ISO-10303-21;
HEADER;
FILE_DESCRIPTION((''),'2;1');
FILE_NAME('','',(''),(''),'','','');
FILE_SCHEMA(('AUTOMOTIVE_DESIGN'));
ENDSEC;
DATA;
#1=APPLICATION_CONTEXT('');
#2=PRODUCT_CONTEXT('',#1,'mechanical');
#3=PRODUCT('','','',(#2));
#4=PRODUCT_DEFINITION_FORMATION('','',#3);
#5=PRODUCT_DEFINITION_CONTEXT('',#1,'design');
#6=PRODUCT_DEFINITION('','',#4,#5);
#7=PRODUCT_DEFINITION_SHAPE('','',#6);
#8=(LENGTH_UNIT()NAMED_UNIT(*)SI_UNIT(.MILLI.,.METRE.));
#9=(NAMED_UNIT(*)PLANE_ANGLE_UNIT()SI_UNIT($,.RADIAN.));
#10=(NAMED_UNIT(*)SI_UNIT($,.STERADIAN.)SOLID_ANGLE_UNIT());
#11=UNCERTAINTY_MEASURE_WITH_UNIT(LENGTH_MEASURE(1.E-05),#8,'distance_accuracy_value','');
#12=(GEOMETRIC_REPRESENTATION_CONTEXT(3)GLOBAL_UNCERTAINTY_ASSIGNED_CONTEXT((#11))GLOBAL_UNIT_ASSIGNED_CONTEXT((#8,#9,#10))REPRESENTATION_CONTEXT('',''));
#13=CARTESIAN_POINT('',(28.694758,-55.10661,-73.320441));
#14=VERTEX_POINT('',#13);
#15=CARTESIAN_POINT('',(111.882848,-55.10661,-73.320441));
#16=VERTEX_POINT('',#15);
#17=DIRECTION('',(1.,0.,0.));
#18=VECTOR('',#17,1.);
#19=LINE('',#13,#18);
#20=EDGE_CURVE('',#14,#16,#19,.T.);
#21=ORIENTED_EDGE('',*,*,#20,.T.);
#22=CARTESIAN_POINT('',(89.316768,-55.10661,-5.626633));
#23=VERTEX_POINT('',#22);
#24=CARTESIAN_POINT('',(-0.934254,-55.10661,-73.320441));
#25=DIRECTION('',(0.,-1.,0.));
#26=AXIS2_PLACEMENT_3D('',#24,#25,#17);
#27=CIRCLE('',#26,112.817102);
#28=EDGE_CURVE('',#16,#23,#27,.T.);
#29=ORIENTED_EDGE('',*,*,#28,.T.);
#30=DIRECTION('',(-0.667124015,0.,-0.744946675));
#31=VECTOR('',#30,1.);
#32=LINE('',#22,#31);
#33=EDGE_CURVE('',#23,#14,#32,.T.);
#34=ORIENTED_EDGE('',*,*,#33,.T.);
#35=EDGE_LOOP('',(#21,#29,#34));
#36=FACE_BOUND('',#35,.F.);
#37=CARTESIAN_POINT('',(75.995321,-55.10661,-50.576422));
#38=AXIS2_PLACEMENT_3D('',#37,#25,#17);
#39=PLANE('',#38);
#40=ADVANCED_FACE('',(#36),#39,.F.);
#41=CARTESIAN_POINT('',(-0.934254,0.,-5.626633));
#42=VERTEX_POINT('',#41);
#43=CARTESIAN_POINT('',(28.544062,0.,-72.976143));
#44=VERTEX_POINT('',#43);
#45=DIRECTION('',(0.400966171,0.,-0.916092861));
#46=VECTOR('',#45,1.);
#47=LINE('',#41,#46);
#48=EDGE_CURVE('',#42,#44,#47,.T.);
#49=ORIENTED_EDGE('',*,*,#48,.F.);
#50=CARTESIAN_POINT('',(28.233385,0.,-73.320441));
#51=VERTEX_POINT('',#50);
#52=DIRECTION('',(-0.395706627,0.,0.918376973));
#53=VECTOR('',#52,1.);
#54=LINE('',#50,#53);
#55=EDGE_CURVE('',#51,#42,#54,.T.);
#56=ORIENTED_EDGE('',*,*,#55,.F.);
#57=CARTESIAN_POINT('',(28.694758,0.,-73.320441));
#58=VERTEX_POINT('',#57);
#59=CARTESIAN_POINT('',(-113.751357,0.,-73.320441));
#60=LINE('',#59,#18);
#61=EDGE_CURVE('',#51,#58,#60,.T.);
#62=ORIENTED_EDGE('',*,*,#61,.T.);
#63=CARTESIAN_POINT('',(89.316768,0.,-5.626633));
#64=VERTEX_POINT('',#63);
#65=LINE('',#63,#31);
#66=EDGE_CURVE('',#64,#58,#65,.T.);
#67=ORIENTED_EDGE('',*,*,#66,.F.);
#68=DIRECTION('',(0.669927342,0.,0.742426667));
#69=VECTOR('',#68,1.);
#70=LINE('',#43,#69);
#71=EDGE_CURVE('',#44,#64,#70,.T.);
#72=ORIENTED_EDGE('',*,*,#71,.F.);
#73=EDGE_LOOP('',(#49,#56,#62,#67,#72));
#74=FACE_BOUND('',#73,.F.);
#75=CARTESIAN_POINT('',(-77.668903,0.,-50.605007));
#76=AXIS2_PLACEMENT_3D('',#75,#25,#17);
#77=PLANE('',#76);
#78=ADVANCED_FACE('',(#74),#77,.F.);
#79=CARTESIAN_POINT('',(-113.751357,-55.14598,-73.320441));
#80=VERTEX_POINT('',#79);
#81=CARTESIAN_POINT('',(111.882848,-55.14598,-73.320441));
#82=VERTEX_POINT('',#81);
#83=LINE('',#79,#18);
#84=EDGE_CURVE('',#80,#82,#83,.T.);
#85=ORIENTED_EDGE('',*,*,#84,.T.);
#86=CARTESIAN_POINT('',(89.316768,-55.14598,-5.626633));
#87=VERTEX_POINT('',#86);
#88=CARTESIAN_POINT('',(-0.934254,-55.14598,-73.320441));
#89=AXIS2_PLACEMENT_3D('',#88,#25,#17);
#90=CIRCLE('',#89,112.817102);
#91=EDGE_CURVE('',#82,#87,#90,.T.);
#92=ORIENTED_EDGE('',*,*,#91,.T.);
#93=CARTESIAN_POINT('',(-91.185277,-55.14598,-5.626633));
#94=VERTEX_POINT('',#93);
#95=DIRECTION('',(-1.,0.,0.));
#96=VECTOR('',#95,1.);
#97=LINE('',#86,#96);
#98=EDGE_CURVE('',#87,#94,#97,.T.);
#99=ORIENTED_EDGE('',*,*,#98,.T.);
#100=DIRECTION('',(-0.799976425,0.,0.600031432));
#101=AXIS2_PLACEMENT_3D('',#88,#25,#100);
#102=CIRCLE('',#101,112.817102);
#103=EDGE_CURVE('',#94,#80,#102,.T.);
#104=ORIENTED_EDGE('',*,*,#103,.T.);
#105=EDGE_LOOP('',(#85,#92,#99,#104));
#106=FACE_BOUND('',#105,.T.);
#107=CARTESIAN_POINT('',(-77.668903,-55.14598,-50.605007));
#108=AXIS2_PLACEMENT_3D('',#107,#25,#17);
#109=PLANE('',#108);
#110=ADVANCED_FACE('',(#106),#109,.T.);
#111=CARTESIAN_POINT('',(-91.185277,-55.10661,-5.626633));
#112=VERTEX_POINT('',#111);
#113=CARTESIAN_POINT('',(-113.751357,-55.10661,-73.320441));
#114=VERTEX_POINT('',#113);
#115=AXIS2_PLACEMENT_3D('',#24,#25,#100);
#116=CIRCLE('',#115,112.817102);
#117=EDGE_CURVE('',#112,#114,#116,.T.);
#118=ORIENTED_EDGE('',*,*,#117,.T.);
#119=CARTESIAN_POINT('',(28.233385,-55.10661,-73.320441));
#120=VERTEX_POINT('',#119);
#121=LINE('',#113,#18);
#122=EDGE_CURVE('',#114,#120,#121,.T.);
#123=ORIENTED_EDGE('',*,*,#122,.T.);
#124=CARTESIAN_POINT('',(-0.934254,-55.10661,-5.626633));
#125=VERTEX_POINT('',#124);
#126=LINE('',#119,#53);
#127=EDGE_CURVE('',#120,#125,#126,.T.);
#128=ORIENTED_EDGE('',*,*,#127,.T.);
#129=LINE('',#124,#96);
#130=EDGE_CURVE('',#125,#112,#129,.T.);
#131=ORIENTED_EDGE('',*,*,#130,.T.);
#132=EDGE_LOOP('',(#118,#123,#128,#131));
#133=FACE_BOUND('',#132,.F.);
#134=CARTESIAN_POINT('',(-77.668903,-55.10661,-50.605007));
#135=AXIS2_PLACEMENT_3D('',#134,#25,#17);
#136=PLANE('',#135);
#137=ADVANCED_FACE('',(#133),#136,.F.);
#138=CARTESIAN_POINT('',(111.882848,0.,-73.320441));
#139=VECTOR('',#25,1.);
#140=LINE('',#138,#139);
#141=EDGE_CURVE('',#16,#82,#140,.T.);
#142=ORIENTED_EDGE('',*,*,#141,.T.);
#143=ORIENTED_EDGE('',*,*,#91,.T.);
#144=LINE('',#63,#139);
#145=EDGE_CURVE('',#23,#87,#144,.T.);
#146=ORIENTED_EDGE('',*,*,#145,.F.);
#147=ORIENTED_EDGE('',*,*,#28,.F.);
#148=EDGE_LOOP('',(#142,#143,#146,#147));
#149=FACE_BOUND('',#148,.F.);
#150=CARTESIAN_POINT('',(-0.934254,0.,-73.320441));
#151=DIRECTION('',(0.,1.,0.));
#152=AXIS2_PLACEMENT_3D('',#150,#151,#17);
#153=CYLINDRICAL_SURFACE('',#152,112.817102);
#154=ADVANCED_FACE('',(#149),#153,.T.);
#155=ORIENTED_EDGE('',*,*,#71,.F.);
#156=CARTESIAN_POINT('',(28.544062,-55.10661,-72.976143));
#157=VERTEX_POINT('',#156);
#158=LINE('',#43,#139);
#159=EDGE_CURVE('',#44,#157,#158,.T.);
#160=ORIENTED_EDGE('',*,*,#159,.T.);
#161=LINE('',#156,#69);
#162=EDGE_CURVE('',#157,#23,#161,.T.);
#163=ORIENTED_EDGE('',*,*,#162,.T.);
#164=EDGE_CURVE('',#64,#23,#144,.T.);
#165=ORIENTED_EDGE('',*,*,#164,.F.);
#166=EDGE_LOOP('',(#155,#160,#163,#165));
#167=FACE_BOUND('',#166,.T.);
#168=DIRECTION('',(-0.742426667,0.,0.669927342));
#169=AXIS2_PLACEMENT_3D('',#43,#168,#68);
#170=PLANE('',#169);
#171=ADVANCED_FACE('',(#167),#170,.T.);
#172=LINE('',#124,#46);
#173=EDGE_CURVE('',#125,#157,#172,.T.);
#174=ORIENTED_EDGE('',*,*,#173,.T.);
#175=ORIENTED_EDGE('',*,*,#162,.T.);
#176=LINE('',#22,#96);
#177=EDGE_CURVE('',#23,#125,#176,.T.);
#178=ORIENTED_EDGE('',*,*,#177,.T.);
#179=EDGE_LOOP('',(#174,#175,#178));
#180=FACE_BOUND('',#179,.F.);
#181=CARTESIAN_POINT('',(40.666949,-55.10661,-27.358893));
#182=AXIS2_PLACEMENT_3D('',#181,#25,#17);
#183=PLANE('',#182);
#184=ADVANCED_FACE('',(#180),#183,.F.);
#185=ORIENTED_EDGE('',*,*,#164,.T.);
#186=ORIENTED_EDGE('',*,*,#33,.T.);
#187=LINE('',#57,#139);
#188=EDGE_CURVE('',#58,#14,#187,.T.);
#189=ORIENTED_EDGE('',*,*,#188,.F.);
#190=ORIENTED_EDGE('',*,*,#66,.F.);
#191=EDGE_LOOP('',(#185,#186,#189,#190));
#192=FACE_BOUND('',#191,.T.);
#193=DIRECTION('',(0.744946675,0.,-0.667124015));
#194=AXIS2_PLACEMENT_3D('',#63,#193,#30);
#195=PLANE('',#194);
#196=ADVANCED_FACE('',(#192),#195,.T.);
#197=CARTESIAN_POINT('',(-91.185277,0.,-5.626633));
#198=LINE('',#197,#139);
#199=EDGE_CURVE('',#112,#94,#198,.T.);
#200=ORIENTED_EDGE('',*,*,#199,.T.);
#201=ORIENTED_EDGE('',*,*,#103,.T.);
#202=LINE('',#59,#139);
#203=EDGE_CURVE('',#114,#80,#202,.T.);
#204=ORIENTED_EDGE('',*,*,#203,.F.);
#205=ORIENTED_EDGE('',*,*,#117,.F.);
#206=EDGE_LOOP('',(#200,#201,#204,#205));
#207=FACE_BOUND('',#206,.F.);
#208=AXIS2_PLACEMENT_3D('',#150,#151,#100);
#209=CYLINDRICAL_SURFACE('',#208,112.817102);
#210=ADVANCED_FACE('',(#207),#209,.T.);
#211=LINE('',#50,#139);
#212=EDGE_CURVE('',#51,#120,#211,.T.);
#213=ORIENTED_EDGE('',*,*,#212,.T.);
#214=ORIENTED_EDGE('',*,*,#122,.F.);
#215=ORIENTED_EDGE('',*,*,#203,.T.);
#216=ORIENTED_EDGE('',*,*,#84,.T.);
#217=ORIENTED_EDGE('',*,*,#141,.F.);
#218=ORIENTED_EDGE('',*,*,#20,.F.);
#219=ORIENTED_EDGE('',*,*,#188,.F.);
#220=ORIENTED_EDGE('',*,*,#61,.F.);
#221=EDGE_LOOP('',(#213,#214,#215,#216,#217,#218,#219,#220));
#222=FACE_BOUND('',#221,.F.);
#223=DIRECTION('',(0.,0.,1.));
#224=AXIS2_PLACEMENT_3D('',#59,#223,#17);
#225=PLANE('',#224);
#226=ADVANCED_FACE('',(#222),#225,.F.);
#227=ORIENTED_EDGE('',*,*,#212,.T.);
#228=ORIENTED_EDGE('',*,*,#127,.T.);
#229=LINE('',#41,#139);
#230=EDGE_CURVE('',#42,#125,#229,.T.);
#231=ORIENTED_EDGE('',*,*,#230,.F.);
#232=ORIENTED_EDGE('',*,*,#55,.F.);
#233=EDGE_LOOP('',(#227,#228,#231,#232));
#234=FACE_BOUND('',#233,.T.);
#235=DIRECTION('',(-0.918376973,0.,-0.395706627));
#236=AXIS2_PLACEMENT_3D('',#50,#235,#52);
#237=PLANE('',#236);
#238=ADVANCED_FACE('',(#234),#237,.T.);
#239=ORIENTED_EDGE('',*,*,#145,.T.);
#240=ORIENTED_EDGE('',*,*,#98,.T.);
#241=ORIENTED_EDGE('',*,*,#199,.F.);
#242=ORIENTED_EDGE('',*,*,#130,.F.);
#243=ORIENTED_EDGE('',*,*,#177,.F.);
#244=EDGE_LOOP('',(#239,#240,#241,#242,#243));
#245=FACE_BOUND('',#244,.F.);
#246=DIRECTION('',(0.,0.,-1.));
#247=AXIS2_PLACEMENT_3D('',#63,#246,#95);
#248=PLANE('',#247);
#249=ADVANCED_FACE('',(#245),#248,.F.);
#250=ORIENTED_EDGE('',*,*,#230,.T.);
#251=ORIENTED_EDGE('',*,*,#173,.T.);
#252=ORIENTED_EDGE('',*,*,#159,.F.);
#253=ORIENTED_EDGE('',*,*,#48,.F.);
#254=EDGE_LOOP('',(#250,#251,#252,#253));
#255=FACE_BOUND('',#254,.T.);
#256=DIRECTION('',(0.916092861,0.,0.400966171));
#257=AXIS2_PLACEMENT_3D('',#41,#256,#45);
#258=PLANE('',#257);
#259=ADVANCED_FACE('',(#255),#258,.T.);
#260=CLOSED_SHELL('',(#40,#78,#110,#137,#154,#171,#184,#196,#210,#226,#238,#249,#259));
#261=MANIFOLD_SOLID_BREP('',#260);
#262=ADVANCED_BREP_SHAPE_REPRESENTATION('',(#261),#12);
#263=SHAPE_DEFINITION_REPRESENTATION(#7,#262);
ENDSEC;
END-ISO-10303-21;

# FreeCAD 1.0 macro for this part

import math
import FreeCAD as App
import Part
import Sketcher
from FreeCAD import Vector
Q = App.Units.Quantity

doc = App.newDocument("Part")
body = doc.addObject("PartDesign::Body", "Body")

# Sketch on XZ plane
sketch1 = body.newObject("Sketcher::SketchObject", "Sketch")
sketch1.AttachmentSupport = (doc.getObject("XZ_Plane"), [""])
sketch1.MapMode = "FlatFace"
sketch1.addGeometry([
    Part.ArcOfCircle(Part.Circle(Vector(-0.934254, -73.320441, 0), Vector(0, 0, 1), 112.817102), math.radians(143.127851), math.radians(180)),
    Part.LineSegment(Vector(-113.751357, -73.320441, 0), Vector(111.882848, -73.320441, 0)),
    Part.ArcOfCircle(Part.Circle(Vector(-0.934254, -73.320441, 0), Vector(0, 0, 1), 112.817102), math.radians(0), math.radians(36.872149)),
    Part.LineSegment(Vector(89.316768, -5.626633, 0), Vector(-91.185277, -5.626633, 0)),
], False)
sketch1.addConstraint([
    Sketcher.Constraint("Coincident", 0, 2, 1, 1),
    Sketcher.Constraint("Coincident", 1, 2, 2, 1),
    Sketcher.Constraint("Coincident", 2, 2, 3, 1),
    Sketcher.Constraint("Coincident", 3, 2, 0, 1),
    Sketcher.Constraint("Horizontal", 1),
    Sketcher.Constraint("Horizontal", 3),
    Sketcher.Constraint("Coincident", 2, 3, 0, 3),
    Sketcher.Constraint("Equal", 0, 2),
    Sketcher.Constraint("Horizontal", 2, 3, 0, 2),
    Sketcher.Constraint("Radius", 0, Q("112.817102 mm")),
    Sketcher.Constraint("DistanceX", 3, 2, 3, 1, Q("180.502045 mm")),
    Sketcher.Constraint("DistanceY", 0, 3, -1, 1, Q("73.320441 mm")),
    Sketcher.Constraint("DistanceX", -1, 1, 1, 2, Q("111.882848 mm")),
])
pad1 = body.newObject("PartDesign::Pad", "Pad")
pad1.Profile = sketch1
pad1.Length = 55.14598

# Sketch on XZ plane
sketch2 = body.newObject("Sketcher::SketchObject", "Sketch001")
sketch2.AttachmentSupport = (doc.getObject("XZ_Plane"), [""])
sketch2.MapMode = "FlatFace"
sketch2.addGeometry([
    Part.ArcOfCircle(Part.Circle(Vector(-0.934254, -73.320441, 0), Vector(0, 0, 1), 112.817102), math.radians(143.127851), math.radians(180)),  # 0
    Part.LineSegment(Vector(-113.751357, -73.320441, 0), Vector(28.233385, -73.320441, 0)),  # 1
    Part.LineSegment(Vector(28.233385, -73.320441, 0), Vector(-0.934254, -5.626633, 0)),  # 2
    Part.LineSegment(Vector(-0.934254, -5.626633, 0), Vector(-91.185277, -5.626633, 0)),  # 3
    Part.LineSegment(Vector(89.316768, -5.626633, 0), Vector(-0.934254, -5.626633, 0)),  # 4
    Part.LineSegment(Vector(-0.934254, -5.626633, 0), Vector(28.544062, -72.976143, 0)),  # 5
    Part.LineSegment(Vector(28.544062, -72.976143, 0), Vector(89.316768, -5.626633, 0)),  # 6
    Part.LineSegment(Vector(89.316768, -5.626633, 0), Vector(28.694758, -73.320441, 0)),  # 7
    Part.LineSegment(Vector(28.694758, -73.320441, 0), Vector(111.882848, -73.320441, 0)),  # 8
    Part.ArcOfCircle(Part.Circle(Vector(-0.934254, -73.320441, 0), Vector(0, 0, 1), 112.817102), math.radians(0), math.radians(36.872149)),  # 9
], False)
sketch2.addConstraint([
    Sketcher.Constraint("Coincident", 0, 2, 1, 1),
    Sketcher.Constraint("Coincident", 1, 2, 2, 1),
    Sketcher.Constraint("Coincident", 2, 2, 3, 1),
    Sketcher.Constraint("Coincident", 3, 2, 0, 1),
    Sketcher.Constraint("Coincident", 4, 2, 5, 1),
    Sketcher.Constraint("Coincident", 5, 2, 6, 1),
    Sketcher.Constraint("Coincident", 6, 2, 4, 1),
    Sketcher.Constraint("Coincident", 7, 2, 8, 1),
    Sketcher.Constraint("Coincident", 8, 2, 9, 1),
    Sketcher.Constraint("Coincident", 9, 2, 7, 1),
    Sketcher.Constraint("Horizontal", 1),
    Sketcher.Constraint("Horizontal", 3),
    Sketcher.Constraint("Horizontal", 4),
    Sketcher.Constraint("Horizontal", 8),
    Sketcher.Constraint("Coincident", 9, 3, 0, 3),
    Sketcher.Constraint("Coincident", 4, 2, 2, 2),
    Sketcher.Constraint("Coincident", 9, 2, 6, 2),
    Sketcher.Constraint("Equal", 0, 9),
    Sketcher.Constraint("Horizontal", 9, 3, 0, 2),
    Sketcher.Constraint("Horizontal", 1, 2, 7, 2),
    Sketcher.Constraint("Vertical", 9, 3, 2, 2),
    Sketcher.Constraint("Radius", 0, Q("112.817102 mm")),
    Sketcher.Constraint("DistanceX", 1, 1, 1, 2, Q("141.984742 mm")),
    Sketcher.Constraint("DistanceX", 8, 1, 8, 2, Q("83.18809 mm")),
    Sketcher.Constraint("DistanceY", 1, 2, 5, 2, Q("0.344298 mm")),
    Sketcher.Constraint("Distance", 6, Q("90.715369 mm")),
    Sketcher.Constraint("DistanceX", 3, 2, 3, 1, Q("90.251022 mm")),
    Sketcher.Constraint("DistanceY", 0, 3, -1, 1, Q("73.320441 mm")),
    Sketcher.Constraint("DistanceX", -1, 1, 5, 2, Q("28.544062 mm")),
])
pocket1 = body.newObject("PartDesign::Pocket", "Pocket")
pocket1.Profile = sketch2
pocket1.Length = 55.10661
pocket1.Reversed = True

doc.recompute()
